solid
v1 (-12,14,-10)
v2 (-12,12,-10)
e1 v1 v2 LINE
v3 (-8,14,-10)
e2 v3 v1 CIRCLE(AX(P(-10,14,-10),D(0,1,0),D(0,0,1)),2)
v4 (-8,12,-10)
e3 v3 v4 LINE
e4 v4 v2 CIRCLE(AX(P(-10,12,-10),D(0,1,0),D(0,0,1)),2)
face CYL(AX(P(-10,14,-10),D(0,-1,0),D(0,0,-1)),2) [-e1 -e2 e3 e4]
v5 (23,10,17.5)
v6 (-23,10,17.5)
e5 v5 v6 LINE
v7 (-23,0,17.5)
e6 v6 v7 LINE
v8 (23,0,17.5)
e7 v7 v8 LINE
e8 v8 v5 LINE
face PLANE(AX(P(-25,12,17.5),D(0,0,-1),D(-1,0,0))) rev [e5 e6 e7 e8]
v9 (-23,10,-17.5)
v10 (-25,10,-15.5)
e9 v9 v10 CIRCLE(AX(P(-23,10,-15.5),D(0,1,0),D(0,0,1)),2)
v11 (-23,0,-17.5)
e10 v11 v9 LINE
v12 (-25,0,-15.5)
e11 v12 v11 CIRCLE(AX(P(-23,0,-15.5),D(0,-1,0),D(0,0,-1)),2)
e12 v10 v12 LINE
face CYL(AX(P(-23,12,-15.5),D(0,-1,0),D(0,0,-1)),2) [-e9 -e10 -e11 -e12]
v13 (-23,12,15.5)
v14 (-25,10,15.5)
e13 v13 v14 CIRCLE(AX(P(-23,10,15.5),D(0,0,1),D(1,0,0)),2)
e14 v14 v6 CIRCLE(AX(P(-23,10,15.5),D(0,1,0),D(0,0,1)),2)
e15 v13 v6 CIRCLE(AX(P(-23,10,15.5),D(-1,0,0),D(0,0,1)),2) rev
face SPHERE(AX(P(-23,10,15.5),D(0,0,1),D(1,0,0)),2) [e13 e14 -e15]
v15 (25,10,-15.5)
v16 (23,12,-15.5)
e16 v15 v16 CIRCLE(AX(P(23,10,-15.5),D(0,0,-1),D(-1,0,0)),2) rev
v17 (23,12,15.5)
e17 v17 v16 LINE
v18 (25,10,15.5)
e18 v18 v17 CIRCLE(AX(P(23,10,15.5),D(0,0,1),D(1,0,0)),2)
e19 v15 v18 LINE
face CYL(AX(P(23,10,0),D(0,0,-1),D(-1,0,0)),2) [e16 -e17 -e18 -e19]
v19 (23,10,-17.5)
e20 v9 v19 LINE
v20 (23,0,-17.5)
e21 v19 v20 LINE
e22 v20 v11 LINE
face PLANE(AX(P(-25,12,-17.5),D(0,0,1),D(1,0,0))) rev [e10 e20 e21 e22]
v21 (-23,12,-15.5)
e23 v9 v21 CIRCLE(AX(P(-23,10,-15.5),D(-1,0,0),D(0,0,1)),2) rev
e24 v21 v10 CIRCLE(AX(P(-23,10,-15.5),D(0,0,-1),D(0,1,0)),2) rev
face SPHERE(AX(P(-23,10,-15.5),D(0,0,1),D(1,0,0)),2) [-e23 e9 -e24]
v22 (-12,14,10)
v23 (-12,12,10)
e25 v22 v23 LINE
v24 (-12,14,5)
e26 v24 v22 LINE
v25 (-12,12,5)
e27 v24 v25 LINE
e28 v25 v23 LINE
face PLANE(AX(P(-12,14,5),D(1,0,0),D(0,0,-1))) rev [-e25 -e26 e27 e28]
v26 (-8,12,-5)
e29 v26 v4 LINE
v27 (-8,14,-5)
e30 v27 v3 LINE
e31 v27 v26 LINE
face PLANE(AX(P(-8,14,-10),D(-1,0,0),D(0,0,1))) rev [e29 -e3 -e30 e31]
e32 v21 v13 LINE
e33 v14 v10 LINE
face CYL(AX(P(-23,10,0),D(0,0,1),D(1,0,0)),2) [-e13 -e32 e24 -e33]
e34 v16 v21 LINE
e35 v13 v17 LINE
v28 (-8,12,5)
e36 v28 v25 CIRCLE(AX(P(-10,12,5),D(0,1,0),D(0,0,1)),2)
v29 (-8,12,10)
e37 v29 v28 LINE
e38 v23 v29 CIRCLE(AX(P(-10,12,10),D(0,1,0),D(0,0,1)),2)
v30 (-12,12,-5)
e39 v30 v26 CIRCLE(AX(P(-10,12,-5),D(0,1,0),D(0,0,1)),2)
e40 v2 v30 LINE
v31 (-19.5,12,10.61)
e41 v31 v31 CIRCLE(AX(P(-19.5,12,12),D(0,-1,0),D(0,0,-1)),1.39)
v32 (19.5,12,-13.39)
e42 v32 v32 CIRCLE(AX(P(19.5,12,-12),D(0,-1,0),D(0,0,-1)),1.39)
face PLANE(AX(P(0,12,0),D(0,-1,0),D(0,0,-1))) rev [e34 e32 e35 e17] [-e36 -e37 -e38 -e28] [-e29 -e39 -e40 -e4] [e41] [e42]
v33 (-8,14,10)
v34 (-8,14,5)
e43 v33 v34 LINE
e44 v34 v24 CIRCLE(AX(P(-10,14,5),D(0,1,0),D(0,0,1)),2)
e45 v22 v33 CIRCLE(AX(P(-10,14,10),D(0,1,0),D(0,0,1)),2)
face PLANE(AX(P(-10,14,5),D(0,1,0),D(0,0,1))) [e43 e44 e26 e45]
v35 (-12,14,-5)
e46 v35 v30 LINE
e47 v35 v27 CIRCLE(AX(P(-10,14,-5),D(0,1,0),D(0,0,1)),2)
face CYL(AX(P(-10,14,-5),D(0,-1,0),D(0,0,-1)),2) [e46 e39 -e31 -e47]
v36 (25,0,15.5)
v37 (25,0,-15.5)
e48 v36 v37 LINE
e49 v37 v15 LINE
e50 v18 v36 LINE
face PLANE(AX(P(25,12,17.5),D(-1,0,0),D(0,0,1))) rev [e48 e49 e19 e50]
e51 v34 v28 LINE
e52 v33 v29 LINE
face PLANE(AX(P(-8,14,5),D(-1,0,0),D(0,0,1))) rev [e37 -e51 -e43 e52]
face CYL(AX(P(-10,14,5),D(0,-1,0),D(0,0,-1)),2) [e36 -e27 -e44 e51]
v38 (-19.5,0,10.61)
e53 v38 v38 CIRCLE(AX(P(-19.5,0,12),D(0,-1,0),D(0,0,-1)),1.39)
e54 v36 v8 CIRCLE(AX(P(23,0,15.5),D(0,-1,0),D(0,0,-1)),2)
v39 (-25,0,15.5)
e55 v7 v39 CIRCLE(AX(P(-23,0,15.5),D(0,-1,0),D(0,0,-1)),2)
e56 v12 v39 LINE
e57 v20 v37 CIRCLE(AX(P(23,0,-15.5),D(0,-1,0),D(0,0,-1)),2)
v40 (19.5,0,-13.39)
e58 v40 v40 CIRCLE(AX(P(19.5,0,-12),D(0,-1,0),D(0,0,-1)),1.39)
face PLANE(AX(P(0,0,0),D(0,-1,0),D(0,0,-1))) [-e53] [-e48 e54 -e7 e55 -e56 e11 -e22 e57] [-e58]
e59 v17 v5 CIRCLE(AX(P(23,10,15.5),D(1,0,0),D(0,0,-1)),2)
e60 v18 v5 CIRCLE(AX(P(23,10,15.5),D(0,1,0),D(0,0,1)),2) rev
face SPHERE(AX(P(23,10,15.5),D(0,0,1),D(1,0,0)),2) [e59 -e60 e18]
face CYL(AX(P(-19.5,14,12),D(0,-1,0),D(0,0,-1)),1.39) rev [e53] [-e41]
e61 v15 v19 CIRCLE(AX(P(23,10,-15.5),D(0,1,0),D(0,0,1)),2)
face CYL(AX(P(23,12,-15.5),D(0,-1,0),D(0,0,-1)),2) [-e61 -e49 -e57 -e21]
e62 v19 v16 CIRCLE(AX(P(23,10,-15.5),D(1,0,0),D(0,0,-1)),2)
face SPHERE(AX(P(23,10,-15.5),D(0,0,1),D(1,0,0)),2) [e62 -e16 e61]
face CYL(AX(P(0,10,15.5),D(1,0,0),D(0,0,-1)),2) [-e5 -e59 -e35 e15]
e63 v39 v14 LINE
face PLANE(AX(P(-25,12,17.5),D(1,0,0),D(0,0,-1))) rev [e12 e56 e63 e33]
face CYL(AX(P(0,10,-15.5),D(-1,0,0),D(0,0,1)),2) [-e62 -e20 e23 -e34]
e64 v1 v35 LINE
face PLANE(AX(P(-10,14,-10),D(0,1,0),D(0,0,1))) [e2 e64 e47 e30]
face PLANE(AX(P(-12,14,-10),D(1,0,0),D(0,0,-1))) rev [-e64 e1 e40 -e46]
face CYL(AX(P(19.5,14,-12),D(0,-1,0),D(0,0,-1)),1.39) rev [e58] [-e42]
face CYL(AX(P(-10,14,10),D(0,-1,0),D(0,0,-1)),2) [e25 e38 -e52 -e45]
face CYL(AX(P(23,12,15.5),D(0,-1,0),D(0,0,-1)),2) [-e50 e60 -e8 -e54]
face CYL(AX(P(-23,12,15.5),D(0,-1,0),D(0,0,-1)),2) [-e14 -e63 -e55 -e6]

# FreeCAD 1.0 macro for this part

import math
import FreeCAD as App
import Part
import Sketcher
Q = App.Units.Quantity


def edges_at(feature, points):
    """Names of the edges that pass closest to the given points."""
    edges = feature.Shape.Edges
    near = lambda p: min(range(len(edges)), key=lambda i: edges[i].distToShape(Part.Vertex(*p))[0])
    return sorted({f"Edge{near(p) + 1}" for p in points})

doc = App.newDocument("Part")
params = doc.addObject("Spreadsheet::Sheet", "Params")
for row, (alias, value) in enumerate([
    ("sketch1_width", "50 mm"),
    ("sketch1_height", "35 mm"),
    ("pad1_length", "12 mm"),
    ("sketch2_radius", "2 mm"),
    ("sketch2_height", "5 mm"),
    ("pad2_length", "2 mm"),
    ("fillet_radius", "2 mm"),
    ("sketch3_diameter", "2.78 mm"),
], start=1):
    params.set(f"A{row}", alias)
    params.set(f"B{row}", "=" + value)
    params.setAlias(f"B{row}", alias)

body = doc.addObject("PartDesign::Body", "Body")

# Sketch on XZ plane
sketch1 = body.newObject("Sketcher::SketchObject", "Sketch")
sketch1.AttachmentSupport = (doc.getObject("XZ_Plane"), [""])
sketch1.MapMode = "FlatFace"
sketch1.addGeometry(Part.LineSegment(App.Vector(-25, -18, 0), App.Vector(-25, 18, 0)), False)
sketch1.addGeometry(Part.LineSegment(App.Vector(-25, 18, 0), App.Vector(25, 18, 0)), False)
sketch1.addGeometry(Part.LineSegment(App.Vector(25, 18, 0), App.Vector(25, -18, 0)), False)
sketch1.addGeometry(Part.LineSegment(App.Vector(25, -18, 0), App.Vector(-25, -18, 0)), False)
sketch1.addConstraint(Sketcher.Constraint("Coincident", 0, 2, 1, 1))
sketch1.addConstraint(Sketcher.Constraint("Coincident", 1, 2, 2, 1))
sketch1.addConstraint(Sketcher.Constraint("Coincident", 2, 2, 3, 1))
sketch1.addConstraint(Sketcher.Constraint("Coincident", 3, 2, 0, 1))
sketch1.addConstraint(Sketcher.Constraint("Vertical", 0))
sketch1.addConstraint(Sketcher.Constraint("Horizontal", 1))
sketch1.addConstraint(Sketcher.Constraint("Vertical", 2))
sketch1.addConstraint(Sketcher.Constraint("Horizontal", 3))
sketch1.addConstraint(Sketcher.Constraint("Symmetric", 0, 2, 2, 2, -1, 1))
sketch1.addConstraint(Sketcher.Constraint("DistanceX", 1, 1, 1, 2, Q("50 mm")))
sketch1.addConstraint(Sketcher.Constraint("DistanceY", 0, 1, 0, 2, Q("35 mm")))
sketch1.setExpression("Constraints[9]", "Params.sketch1_width")
sketch1.setExpression("Constraints[10]", "Params.sketch1_height")
pad1 = body.newObject("PartDesign::Pad", "Pad")
pad1.Profile = sketch1
pad1.setExpression("Length", "Params.pad1_length")
pad1.Reversed = True

# Sketch on XZ plane
sketch2 = body.newObject("Sketcher::SketchObject", "Sketch001")
sketch2.AttachmentSupport = (doc.getObject("XZ_Plane"), [""])
sketch2.MapMode = "FlatFace"
sketch2.AttachmentOffset = App.Placement(App.Vector(0, 0, -12), App.Rotation())
sketch2.addGeometry(Part.LineSegment(App.Vector(-8, -5, 0), App.Vector(-8, -10, 0)), False)
sketch2.addGeometry(Part.ArcOfCircle(Part.Circle(App.Vector(-10, -10, 0), App.Vector(0, 0, 1), 2), math.radians(180), math.radians(360)), False)
sketch2.addGeometry(Part.LineSegment(App.Vector(-12, -10, 0), App.Vector(-12, -5, 0)), False)
sketch2.addGeometry(Part.ArcOfCircle(Part.Circle(App.Vector(-10, -5, 0), App.Vector(0, 0, 1), 2), math.radians(0), math.radians(180)), False)
sketch2.addGeometry(Part.LineSegment(App.Vector(-8, 10, 0), App.Vector(-8, 5, 0)), False)
sketch2.addGeometry(Part.ArcOfCircle(Part.Circle(App.Vector(-10, 5, 0), App.Vector(0, 0, 1), 2), math.radians(180), math.radians(360)), False)
sketch2.addGeometry(Part.LineSegment(App.Vector(-12, 5, 0), App.Vector(-12, 10, 0)), False)
sketch2.addGeometry(Part.ArcOfCircle(Part.Circle(App.Vector(-10, 10, 0), App.Vector(0, 0, 1), 2), math.radians(0), math.radians(180)), False)
sketch2.addConstraint(Sketcher.Constraint("Tangent", 0, 2, 1, 2))
sketch2.addConstraint(Sketcher.Constraint("Tangent", 1, 1, 2, 1))
sketch2.addConstraint(Sketcher.Constraint("Tangent", 2, 2, 3, 2))
sketch2.addConstraint(Sketcher.Constraint("Tangent", 3, 1, 0, 1))
sketch2.addConstraint(Sketcher.Constraint("Tangent", 4, 2, 5, 2))
sketch2.addConstraint(Sketcher.Constraint("Tangent", 5, 1, 6, 1))
sketch2.addConstraint(Sketcher.Constraint("Tangent", 6, 2, 7, 2))
sketch2.addConstraint(Sketcher.Constraint("Tangent", 7, 1, 4, 1))
sketch2.addConstraint(Sketcher.Constraint("Vertical", 0))
sketch2.addConstraint(Sketcher.Constraint("Vertical", 2))
sketch2.addConstraint(Sketcher.Constraint("Vertical", 4))
sketch2.addConstraint(Sketcher.Constraint("Vertical", 6))
sketch2.addConstraint(Sketcher.Constraint("Equal", 3, 5))
sketch2.addConstraint(Sketcher.Constraint("Symmetric", 3, 3, 5, 3, -1))
sketch2.addConstraint(Sketcher.Constraint("Equal", 2, 4))
sketch2.addConstraint(Sketcher.Constraint("Radius", 1, Q("2 mm")))
sketch2.addConstraint(Sketcher.Constraint("DistanceY", 0, 2, 0, 1, Q("5 mm")))
sketch2.addConstraint(Sketcher.Constraint("DistanceX", 1, 3, -1, 1, Q("10 mm")))
sketch2.addConstraint(Sketcher.Constraint("DistanceY", 1, 3, -1, 1, Q("10 mm")))
sketch2.setExpression("Constraints[15]", "Params.sketch2_radius")
sketch2.setExpression("Constraints[16]", "Params.sketch2_height")
pad2 = body.newObject("PartDesign::Pad", "Pad001")
pad2.Profile = sketch2
pad2.setExpression("Length", "Params.pad2_length")
pad2.Reversed = True
doc.recompute()

fillet = body.newObject("PartDesign::Fillet", "Fillet")
fillet.Base = (pad2, edges_at(pad2, [
    (-25, 12, 0),
    (0, 12, 17.5),
    (25, 12, 0),
    (0, 12, -17.5),
    (25, 6, 17.5),
    (-25, 6, 17.5),
    (-25, 6, -17.5),
    (25, 6, -17.5),
]))
fillet.setExpression("Radius", "Params.fillet_radius")

# Sketch on XZ plane
sketch3 = body.newObject("Sketcher::SketchObject", "Sketch002")
sketch3.AttachmentSupport = (doc.getObject("XZ_Plane"), [""])
sketch3.MapMode = "FlatFace"
sketch3.addGeometry(Part.Circle(App.Vector(-19.5, 12, 0), App.Vector(0, 0, 1), 1.4), False)
sketch3.addGeometry(Part.Circle(App.Vector(19.5, -12, 0), App.Vector(0, 0, 1), 1.4), False)
sketch3.addConstraint(Sketcher.Constraint("Equal", 0, 1))
sketch3.addConstraint(Sketcher.Constraint("Symmetric", 0, 3, 1, 3, -1, 1))
sketch3.addConstraint(Sketcher.Constraint("Diameter", 0, Q("2.78 mm")))
sketch3.addConstraint(Sketcher.Constraint("DistanceY", -1, 1, 0, 3, Q("12 mm")))
sketch3.addConstraint(Sketcher.Constraint("DistanceX", 0, 3, 1, 3, Q("39 mm")))
sketch3.setExpression("Constraints[2]", "Params.sketch3_diameter")
pocket1 = body.newObject("PartDesign::Pocket", "Pocket")
pocket1.Profile = sketch3
pocket1.Type = "ThroughAll"

doc.recompute()
